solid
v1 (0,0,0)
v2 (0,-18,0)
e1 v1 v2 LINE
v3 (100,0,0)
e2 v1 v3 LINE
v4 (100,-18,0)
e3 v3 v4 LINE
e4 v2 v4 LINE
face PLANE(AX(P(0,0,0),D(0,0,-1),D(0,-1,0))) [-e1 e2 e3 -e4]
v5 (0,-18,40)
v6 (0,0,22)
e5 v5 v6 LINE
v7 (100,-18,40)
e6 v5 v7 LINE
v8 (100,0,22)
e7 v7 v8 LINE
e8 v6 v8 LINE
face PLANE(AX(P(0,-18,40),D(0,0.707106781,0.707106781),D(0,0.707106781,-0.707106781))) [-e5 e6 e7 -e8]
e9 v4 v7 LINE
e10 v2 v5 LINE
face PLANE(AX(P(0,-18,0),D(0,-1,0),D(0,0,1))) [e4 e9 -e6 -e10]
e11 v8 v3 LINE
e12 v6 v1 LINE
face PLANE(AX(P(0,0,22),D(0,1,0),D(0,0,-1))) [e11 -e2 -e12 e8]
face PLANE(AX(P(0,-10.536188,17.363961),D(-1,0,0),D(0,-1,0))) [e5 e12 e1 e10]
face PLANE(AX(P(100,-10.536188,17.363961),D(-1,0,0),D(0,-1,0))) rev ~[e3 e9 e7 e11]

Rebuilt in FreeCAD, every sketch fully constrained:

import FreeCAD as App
import Part
import Sketcher
from FreeCAD import Vector
Q = App.Units.Quantity

doc = App.newDocument("Part")
body = doc.addObject("PartDesign::Body", "Body")

sketch1 = body.newObject("Sketcher::SketchObject", "Sketch")
sketch1.AttachmentSupport = (doc.getObject("YZ_Plane"), [""])
sketch1.MapMode = "FlatFace"
sketch1.addGeometry([
    Part.LineSegment(Vector(-18, 0, 0), Vector(0, 0, 0)),
    Part.LineSegment(Vector(0, 0, 0), Vector(0, 22, 0)),
    Part.LineSegment(Vector(0, 22, 0), Vector(-18, 40, 0)),
    Part.LineSegment(Vector(-18, 40, 0), Vector(-18, 0, 0)),
], False)
sketch1.addConstraint([
    Sketcher.Constraint("Coincident", 0, 2, 1, 1),
    Sketcher.Constraint("Coincident", 1, 2, 2, 1),
    Sketcher.Constraint("Coincident", 2, 2, 3, 1),
    Sketcher.Constraint("Coincident", 3, 2, 0, 1),
    Sketcher.Constraint("Horizontal", 0),
    Sketcher.Constraint("Vertical", 1),
    Sketcher.Constraint("Vertical", 3),
    Sketcher.Constraint("Coincident", 0, 2, -1, 1),
    Sketcher.Constraint("DistanceX", 0, 1, 0, 2, Q("18 mm")),
    Sketcher.Constraint("DistanceY", 1, 1, 1, 2, Q("22 mm")),
    Sketcher.Constraint("DistanceY", 3, 2, 3, 1, Q("40 mm")),
])
pad1 = body.newObject("PartDesign::Pad", "Pad")
pad1.Profile = sketch1
pad1.Length = 100

doc.recompute()
